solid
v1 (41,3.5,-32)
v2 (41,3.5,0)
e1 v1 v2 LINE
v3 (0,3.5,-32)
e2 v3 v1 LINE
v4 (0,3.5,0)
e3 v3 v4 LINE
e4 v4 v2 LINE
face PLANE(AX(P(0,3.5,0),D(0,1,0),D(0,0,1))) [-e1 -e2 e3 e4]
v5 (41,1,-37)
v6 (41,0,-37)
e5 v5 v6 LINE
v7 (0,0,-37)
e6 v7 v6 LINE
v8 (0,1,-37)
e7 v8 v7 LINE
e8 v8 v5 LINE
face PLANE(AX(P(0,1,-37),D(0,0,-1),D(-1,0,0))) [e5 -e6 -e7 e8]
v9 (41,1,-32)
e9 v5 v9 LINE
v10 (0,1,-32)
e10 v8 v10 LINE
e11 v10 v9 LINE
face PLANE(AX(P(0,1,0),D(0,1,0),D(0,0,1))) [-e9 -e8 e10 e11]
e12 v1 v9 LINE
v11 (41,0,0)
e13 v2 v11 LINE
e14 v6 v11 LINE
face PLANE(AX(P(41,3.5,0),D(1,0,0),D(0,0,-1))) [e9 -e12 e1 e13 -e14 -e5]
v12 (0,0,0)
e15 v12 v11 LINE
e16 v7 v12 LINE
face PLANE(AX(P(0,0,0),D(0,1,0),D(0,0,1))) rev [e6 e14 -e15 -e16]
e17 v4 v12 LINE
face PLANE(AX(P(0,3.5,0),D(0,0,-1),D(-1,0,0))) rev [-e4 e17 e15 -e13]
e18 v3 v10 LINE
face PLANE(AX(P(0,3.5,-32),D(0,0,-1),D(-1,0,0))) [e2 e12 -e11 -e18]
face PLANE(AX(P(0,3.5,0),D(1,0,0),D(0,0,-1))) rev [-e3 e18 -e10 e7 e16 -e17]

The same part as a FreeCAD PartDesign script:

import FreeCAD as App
import Part
import Sketcher

V = App.Vector


def add_polygon(sketch, points):
    """Adds a closed chain of lines whose ends are joined by coincident constraints."""
    first, n = sketch.GeometryCount, len(points)
    for a, b in zip(points, points[1:] + points[:1]):
        sketch.addGeometry(Part.LineSegment(App.Vector(*a, 0), App.Vector(*b, 0)), False)
    for i in range(n):
        sketch.addConstraint(Sketcher.Constraint("Coincident", first + i, 2, first + (i + 1) % n, 1))

doc = App.newDocument("Part")
body = doc.addObject("PartDesign::Body", "Body")

# Sketch on XZ plane
sketch1 = doc.addObject("Sketcher::SketchObject", "Sketch")
body.addObject(sketch1)
sketch1.AttachmentSupport = (doc.XZ_Plane, [""])
sketch1.MapMode = "FlatFace"
add_polygon(sketch1, [(0, -32), (0, 0), (41, 0), (41, -32)])  # lines 0-3
sketch1.addConstraint([
    Sketcher.Constraint("Vertical", 0),
    Sketcher.Constraint("Horizontal", 1),
    Sketcher.Constraint("Vertical", 2),
    Sketcher.Constraint("Horizontal", 3),
    Sketcher.Constraint("Coincident", 0, 2, -1, 1),
    Sketcher.Constraint("DistanceX", 1, 1, 1, 2, 41.0),
    Sketcher.Constraint("DistanceY", 0, 1, 0, 2, 32.0),
])
pad1 = doc.addObject("PartDesign::Pad", "Pad")
body.addObject(pad1)
pad1.Profile = sketch1
pad1.Length = 3.5
pad1.Reversed = True

# Sketch on XZ plane
sketch2 = doc.addObject("Sketcher::SketchObject", "Sketch001")
body.addObject(sketch2)
sketch2.AttachmentSupport = (doc.XZ_Plane, [""])
sketch2.MapMode = "FlatFace"
add_polygon(sketch2, [(0, -37), (0, -32), (41, -32), (41, -37)])  # lines 0-3
sketch2.addConstraint([
    Sketcher.Constraint("Vertical", 0),
    Sketcher.Constraint("Horizontal", 1),
    Sketcher.Constraint("Vertical", 2),
    Sketcher.Constraint("Horizontal", 3),
    Sketcher.Constraint("PointOnObject", 0, 2, -2),
    Sketcher.Constraint("DistanceX", 1, 1, 1, 2, 41.0),
    Sketcher.Constraint("DistanceY", 0, 1, 0, 2, 5.0),
    Sketcher.Constraint("DistanceY", 0, 2, -1, 1, 32.0),
])
pad2 = doc.addObject("PartDesign::Pad", "Pad001")
body.addObject(pad2)
pad2.Profile = sketch2
pad2.Length = 1
pad2.Reversed = True

doc.recompute()
